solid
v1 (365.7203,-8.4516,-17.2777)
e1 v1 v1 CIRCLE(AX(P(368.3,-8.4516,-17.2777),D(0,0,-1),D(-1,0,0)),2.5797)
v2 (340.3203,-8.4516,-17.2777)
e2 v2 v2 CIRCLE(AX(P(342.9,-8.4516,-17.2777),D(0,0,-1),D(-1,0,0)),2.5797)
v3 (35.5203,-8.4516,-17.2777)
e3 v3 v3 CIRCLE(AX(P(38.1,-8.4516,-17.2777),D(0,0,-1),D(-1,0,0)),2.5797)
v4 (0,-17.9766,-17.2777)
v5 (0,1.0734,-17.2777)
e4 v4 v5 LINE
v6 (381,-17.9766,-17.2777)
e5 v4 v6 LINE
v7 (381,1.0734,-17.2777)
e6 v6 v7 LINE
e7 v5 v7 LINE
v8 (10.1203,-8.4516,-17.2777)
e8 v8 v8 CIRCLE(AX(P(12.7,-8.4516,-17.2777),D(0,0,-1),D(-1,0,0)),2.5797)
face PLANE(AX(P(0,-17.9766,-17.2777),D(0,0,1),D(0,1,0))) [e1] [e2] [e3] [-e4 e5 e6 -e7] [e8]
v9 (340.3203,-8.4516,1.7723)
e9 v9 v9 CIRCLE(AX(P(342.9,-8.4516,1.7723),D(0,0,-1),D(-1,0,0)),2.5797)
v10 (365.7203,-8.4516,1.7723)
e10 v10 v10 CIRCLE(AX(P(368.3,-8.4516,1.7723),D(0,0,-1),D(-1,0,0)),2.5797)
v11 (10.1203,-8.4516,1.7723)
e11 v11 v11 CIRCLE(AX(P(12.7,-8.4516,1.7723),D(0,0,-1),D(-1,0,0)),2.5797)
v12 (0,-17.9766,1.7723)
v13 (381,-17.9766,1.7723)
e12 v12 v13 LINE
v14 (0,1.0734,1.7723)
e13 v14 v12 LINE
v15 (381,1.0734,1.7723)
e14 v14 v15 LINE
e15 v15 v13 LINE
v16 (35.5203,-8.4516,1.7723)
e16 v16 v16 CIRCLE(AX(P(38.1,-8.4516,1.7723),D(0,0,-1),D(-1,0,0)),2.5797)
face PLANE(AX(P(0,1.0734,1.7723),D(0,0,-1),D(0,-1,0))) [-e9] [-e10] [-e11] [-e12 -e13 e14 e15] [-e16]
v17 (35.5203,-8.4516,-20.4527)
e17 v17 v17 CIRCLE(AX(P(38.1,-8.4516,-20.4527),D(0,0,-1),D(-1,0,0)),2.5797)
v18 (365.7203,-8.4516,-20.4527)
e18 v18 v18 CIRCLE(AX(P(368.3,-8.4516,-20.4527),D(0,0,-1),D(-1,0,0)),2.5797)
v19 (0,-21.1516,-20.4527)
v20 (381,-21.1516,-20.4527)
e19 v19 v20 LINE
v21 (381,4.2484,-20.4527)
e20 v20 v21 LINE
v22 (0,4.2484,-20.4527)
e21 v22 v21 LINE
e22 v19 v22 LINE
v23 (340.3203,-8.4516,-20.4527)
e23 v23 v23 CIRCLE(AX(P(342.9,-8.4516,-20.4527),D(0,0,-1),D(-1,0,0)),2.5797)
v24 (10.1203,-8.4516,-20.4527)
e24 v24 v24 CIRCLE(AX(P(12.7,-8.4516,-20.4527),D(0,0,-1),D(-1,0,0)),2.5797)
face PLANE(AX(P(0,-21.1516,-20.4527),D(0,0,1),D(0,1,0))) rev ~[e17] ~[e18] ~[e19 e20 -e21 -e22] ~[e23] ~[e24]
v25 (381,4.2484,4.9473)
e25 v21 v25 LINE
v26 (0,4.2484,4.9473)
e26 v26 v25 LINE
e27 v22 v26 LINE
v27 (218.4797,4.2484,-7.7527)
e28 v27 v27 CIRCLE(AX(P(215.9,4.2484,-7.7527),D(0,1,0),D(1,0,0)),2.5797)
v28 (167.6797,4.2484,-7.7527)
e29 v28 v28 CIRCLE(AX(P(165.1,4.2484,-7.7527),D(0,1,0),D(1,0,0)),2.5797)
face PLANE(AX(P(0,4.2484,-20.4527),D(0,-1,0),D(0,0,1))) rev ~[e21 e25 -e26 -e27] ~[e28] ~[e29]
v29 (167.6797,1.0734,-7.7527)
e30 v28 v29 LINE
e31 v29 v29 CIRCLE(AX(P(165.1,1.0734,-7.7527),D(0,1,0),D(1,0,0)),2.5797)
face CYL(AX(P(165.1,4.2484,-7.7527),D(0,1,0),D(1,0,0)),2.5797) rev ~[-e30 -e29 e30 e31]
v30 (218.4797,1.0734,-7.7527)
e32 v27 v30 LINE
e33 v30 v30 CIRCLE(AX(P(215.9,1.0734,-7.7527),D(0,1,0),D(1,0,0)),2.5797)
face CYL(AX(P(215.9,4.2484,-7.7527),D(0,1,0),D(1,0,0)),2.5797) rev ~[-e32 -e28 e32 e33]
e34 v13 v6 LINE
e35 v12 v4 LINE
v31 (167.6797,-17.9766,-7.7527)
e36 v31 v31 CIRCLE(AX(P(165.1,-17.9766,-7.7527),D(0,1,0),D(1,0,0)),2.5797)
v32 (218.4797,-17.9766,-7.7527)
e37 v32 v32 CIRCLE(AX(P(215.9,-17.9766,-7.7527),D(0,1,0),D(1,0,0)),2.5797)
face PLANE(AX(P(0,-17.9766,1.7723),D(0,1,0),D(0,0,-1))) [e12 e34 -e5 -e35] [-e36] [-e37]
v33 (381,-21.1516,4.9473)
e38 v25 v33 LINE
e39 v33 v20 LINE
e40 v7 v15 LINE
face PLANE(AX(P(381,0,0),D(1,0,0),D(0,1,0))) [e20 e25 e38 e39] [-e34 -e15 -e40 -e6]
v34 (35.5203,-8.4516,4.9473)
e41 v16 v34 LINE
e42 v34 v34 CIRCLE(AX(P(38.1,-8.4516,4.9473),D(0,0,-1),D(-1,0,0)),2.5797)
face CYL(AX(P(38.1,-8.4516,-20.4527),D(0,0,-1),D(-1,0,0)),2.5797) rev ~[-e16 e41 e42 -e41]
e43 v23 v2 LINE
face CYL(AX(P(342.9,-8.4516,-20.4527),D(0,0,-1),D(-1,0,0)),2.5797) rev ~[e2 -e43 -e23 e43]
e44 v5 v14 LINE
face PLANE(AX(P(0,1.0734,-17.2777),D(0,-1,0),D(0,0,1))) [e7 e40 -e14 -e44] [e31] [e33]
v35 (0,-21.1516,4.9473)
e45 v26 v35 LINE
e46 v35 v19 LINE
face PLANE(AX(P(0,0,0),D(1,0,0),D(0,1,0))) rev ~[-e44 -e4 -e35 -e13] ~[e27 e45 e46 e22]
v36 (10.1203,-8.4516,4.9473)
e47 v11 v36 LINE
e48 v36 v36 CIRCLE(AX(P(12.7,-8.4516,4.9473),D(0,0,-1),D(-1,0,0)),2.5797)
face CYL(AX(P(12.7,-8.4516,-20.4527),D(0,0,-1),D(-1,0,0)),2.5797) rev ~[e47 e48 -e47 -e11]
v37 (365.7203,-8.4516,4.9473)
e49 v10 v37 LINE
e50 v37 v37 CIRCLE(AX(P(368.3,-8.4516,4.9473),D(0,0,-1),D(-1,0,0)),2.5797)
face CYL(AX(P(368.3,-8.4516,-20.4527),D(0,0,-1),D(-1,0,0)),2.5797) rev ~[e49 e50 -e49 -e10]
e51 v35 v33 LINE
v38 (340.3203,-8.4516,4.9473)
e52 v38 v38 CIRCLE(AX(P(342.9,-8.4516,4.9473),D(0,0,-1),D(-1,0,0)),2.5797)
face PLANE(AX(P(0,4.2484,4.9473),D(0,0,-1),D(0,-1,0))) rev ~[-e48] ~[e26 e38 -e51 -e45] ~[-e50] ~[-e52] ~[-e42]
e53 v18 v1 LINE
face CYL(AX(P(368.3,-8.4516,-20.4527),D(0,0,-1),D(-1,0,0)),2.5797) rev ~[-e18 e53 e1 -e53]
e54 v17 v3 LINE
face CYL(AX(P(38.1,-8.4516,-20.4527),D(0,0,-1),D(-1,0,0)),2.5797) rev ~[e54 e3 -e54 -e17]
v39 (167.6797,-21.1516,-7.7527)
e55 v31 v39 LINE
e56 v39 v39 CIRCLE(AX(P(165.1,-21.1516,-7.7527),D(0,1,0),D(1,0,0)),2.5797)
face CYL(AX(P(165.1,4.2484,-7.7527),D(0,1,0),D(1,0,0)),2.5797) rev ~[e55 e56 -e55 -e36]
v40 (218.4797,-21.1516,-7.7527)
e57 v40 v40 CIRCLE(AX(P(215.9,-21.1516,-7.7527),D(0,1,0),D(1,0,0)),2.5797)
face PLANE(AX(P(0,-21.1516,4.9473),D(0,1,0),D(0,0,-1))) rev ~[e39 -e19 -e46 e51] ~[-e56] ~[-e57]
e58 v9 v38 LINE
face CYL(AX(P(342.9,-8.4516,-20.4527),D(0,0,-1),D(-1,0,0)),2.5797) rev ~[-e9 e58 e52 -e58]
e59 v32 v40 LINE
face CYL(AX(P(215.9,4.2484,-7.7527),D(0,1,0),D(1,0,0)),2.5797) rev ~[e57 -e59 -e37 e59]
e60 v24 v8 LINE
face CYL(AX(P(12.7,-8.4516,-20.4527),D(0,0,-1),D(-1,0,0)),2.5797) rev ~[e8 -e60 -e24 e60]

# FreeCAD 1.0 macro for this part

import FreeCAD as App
import Part
import Sketcher
Q = App.Units.Quantity


def add_polygon(sketch, points):
    """Adds a closed chain of lines whose ends are joined by coincident constraints."""
    first, n = sketch.GeometryCount, len(points)
    for a, b in zip(points, points[1:] + points[:1]):
        sketch.addGeometry(Part.LineSegment(App.Vector(*a, 0), App.Vector(*b, 0)), False)
    for i in range(n):
        sketch.addConstraint(Sketcher.Constraint("Coincident", first + i, 2, first + (i + 1) % n, 1))

doc = App.newDocument("Part")
body = doc.addObject("PartDesign::Body", "Body")

# Sketch on YZ plane
sketch1 = doc.addObject("Sketcher::SketchObject", "Sketch")
body.addObject(sketch1)
sketch1.AttachmentSupport = (doc.YZ_Plane, [""])
sketch1.MapMode = "FlatFace"
add_polygon(sketch1, [(4, -20), (4, 5), (-21, 5), (-21, -20)])  # lines 0-3
add_polygon(sketch1, [(-18, 2), (1, 2), (1, -17), (-18, -17)])  # lines 4-7
sketch1.addConstraint([
    Sketcher.Constraint("Vertical", 0),
    Sketcher.Constraint("Horizontal", 1),
    Sketcher.Constraint("Vertical", 2),
    Sketcher.Constraint("Horizontal", 3),
    Sketcher.Constraint("Horizontal", 4),
    Sketcher.Constraint("Vertical", 5),
    Sketcher.Constraint("Horizontal", 6),
    Sketcher.Constraint("Vertical", 7),
    Sketcher.Constraint("Equal", 3, 0),
    Sketcher.Constraint("Equal", 6, 5),
    Sketcher.Constraint("DistanceX", 1, 2, 1, 1, Q("1 in")),
    Sketcher.Constraint("DistanceX", 4, 2, 0, 2, Q("0.125 in")),
    Sketcher.Constraint("DistanceY", 4, 2, 0, 2, Q("0.125 in")),
    Sketcher.Constraint("DistanceY", 3, 2, 5, 2, Q("0.125 in")),
    Sketcher.Constraint("DistanceX", -1, 1, 0, 2, 4.2484),
    Sketcher.Constraint("DistanceY", -1, 1, 0, 2, 4.9473),
])
pad1 = doc.addObject("PartDesign::Pad", "Pad")
body.addObject(pad1)
pad1.Profile = sketch1
pad1.Length = Q("15 in")

# Sketch on XY plane
sketch2 = doc.addObject("Sketcher::SketchObject", "Sketch001")
body.addObject(sketch2)
sketch2.AttachmentSupport = (doc.XY_Plane, [""])
sketch2.MapMode = "FlatFace"
sketch2.AttachmentOffset = App.Placement(App.Vector(0, 0, -20.4527), App.Rotation())
sketch2.addGeometry([
    Part.Circle(App.Vector(368.3, -8.5, 0), App.Vector(0, 0, 1), 2.6),
    Part.Circle(App.Vector(342.9, -8.5, 0), App.Vector(0, 0, 1), 2.6),
    Part.Circle(App.Vector(12.7, -8.5, 0), App.Vector(0, 0, 1), 2.6),
    Part.Circle(App.Vector(38.1, -8.5, 0), App.Vector(0, 0, 1), 2.6),
], False)
sketch2.addConstraint([
    Sketcher.Constraint("Equal", 0, 1),
    Sketcher.Constraint("Equal", 1, 2),
    Sketcher.Constraint("Equal", 2, 3),
    Sketcher.Constraint("Horizontal", 0, 3, 1, 3),
    Sketcher.Constraint("Horizontal", 1, 3, 2, 3),
    Sketcher.Constraint("Horizontal", 2, 3, 3, 3),
    Sketcher.Constraint("Diameter", 0, Q("0.203126 in")),
    Sketcher.Constraint("DistanceX", 1, 3, 0, 3, Q("1 in")),
    Sketcher.Constraint("DistanceX", 2, 3, 3, 3, Q("1 in")),
    Sketcher.Constraint("DistanceX", -1, 1, 2, 3, Q("0.5 in")),
    Sketcher.Constraint("DistanceX", 2, 3, 1, 3, Q("13 in")),
    Sketcher.Constraint("DistanceY", 0, 3, -1, 1, 8.4516),
])
pocket1 = doc.addObject("PartDesign::Pocket", "Pocket")
body.addObject(pocket1)
pocket1.Profile = sketch2
pocket1.Length = Q("17 in")
pocket1.Reversed = True

# Sketch on XZ plane
sketch3 = doc.addObject("Sketcher::SketchObject", "Sketch002")
body.addObject(sketch3)
sketch3.AttachmentSupport = (doc.XZ_Plane, [""])
sketch3.MapMode = "FlatFace"
sketch3.AttachmentOffset = App.Placement(App.Vector(0, 0, -4.2484), App.Rotation())
sketch3.addGeometry([
    Part.Circle(App.Vector(165.1, -7.8, 0), App.Vector(0, 0, 1), 2.6),
    Part.Circle(App.Vector(215.9, -7.8, 0), App.Vector(0, 0, 1), 2.6),
], False)
sketch3.addConstraint([
    Sketcher.Constraint("Equal", 0, 1),
    Sketcher.Constraint("Horizontal", 0, 3, 1, 3),
    Sketcher.Constraint("Diameter", 0, Q("0.203126 in")),
    Sketcher.Constraint("DistanceX", 0, 3, 1, 3, Q("2 in")),
    Sketcher.Constraint("DistanceX", -1, 1, 0, 3, Q("6.5 in")),
    Sketcher.Constraint("DistanceY", 0, 3, -1, 1, 7.7527),
])
pocket2 = doc.addObject("PartDesign::Pocket", "Pocket001")
body.addObject(pocket2)
pocket2.Profile = sketch3
pocket2.Length = Q("3.0625 in")
pocket2.Reversed = True

doc.recompute()
